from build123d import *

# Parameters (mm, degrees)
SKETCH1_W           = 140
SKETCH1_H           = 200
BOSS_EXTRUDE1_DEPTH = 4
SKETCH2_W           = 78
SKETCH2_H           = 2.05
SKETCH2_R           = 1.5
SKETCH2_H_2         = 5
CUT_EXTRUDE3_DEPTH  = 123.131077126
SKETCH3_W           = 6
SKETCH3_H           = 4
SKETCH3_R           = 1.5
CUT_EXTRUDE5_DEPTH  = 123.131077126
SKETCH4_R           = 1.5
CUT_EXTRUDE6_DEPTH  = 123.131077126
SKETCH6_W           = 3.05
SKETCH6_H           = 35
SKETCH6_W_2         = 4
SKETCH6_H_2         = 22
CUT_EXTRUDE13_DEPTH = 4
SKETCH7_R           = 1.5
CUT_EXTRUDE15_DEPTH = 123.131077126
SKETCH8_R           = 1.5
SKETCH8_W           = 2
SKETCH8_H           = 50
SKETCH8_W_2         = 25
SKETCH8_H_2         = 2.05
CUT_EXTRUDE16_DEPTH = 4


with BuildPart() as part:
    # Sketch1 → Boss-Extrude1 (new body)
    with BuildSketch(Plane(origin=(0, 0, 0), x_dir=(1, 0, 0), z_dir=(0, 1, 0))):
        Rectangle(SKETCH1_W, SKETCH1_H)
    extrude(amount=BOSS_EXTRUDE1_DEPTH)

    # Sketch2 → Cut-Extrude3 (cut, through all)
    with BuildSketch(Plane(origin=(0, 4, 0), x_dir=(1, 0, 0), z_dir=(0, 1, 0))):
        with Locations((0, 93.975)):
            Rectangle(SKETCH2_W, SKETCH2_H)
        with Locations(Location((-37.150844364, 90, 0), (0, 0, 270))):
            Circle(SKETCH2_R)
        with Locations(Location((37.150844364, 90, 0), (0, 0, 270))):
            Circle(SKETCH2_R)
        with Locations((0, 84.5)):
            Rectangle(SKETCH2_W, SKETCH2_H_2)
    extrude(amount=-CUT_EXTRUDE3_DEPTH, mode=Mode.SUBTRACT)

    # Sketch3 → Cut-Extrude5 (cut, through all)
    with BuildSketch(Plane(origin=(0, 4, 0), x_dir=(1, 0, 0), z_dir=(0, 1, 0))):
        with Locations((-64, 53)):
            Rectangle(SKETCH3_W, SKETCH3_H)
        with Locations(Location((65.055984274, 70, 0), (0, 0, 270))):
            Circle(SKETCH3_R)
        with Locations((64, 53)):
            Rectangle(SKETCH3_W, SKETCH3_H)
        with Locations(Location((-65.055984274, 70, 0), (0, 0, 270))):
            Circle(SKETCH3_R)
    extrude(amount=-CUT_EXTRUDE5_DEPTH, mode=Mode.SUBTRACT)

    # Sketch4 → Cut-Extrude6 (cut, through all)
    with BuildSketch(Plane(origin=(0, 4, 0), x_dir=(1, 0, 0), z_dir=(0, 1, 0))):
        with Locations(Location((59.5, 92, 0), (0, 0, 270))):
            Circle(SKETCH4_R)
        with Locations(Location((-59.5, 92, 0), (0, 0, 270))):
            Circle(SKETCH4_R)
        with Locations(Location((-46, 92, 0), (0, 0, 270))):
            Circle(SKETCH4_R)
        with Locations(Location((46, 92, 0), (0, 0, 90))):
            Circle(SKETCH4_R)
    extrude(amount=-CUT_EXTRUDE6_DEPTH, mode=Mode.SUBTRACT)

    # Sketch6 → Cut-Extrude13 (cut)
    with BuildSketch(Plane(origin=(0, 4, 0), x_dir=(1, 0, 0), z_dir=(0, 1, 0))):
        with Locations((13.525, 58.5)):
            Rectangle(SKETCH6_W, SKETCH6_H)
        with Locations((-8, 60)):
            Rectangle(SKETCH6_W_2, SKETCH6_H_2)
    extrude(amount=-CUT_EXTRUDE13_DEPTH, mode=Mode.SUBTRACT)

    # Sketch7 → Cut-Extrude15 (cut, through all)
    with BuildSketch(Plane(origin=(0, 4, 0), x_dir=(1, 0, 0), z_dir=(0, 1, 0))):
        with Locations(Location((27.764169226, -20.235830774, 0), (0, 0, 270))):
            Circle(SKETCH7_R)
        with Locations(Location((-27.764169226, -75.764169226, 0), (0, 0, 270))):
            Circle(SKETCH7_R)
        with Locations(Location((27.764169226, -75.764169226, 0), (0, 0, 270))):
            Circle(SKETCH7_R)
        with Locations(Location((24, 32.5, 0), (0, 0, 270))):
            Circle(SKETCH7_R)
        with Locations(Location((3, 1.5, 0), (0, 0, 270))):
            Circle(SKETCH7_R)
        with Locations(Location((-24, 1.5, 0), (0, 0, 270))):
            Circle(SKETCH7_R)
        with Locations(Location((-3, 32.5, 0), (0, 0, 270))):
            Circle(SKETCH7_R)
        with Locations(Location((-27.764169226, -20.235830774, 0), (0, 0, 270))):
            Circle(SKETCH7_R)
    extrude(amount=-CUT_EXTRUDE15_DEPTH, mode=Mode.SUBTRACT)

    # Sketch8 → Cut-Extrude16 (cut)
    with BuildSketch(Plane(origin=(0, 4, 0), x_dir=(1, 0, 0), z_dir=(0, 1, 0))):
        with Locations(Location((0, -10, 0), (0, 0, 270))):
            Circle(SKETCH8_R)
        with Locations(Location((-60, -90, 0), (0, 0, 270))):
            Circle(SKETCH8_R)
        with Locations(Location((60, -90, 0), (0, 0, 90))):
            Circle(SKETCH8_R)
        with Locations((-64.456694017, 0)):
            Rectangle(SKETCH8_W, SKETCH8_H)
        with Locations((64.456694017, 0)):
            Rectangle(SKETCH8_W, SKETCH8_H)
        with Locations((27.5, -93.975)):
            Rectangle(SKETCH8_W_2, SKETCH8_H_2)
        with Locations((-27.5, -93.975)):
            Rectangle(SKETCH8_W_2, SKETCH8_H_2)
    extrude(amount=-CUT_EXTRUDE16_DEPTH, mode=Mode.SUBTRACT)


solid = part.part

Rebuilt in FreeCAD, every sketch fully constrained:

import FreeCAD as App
import Part
import Sketcher
from FreeCAD import Vector
Q = App.Units.Quantity

doc = App.newDocument("Part")
body = doc.addObject("PartDesign::Body", "Body")

# Sketch on XZ plane
sketch1 = body.newObject("Sketcher::SketchObject", "Sketch")
sketch1.AttachmentSupport = (doc.getObject("XZ_Plane"), [""])
sketch1.MapMode = "FlatFace"
sketch1.addGeometry([
    Part.LineSegment(Vector(-70, -100, 0), Vector(-70, 100, 0)),
    Part.LineSegment(Vector(-70, 100, 0), Vector(70, 100, 0)),
    Part.LineSegment(Vector(70, 100, 0), Vector(70, -100, 0)),
    Part.LineSegment(Vector(70, -100, 0), Vector(-70, -100, 0)),
], False)
sketch1.addConstraint([
    Sketcher.Constraint("Coincident", 0, 2, 1, 1),
    Sketcher.Constraint("Coincident", 1, 2, 2, 1),
    Sketcher.Constraint("Coincident", 2, 2, 3, 1),
    Sketcher.Constraint("Coincident", 3, 2, 0, 1),
    Sketcher.Constraint("Vertical", 0),
    Sketcher.Constraint("Horizontal", 1),
    Sketcher.Constraint("Vertical", 2),
    Sketcher.Constraint("Horizontal", 3),
    Sketcher.Constraint("Symmetric", 0, 2, 2, 2, -1, 1),
    Sketcher.Constraint("DistanceX", 1, 1, 1, 2, Q("140 mm")),
    Sketcher.Constraint("DistanceY", 0, 1, 0, 2, Q("200 mm")),
])
pad1 = body.newObject("PartDesign::Pad", "Pad")
pad1.Profile = sketch1
pad1.Length = 4
pad1.Reversed = True

# Sketch on XZ plane
sketch2 = body.newObject("Sketcher::SketchObject", "Sketch001")
sketch2.AttachmentSupport = (doc.getObject("XZ_Plane"), [""])
sketch2.MapMode = "FlatFace"
sketch2.AttachmentOffset = App.Placement(Vector(0, 0, -4), App.Rotation())
sketch2.addGeometry([
    Part.LineSegment(Vector(-39, -95, 0), Vector(-39, -93, 0)),  # 0
    Part.LineSegment(Vector(-39, -93, 0), Vector(39, -93, 0)),  # 1
    Part.LineSegment(Vector(39, -93, 0), Vector(39, -95, 0)),  # 2
    Part.LineSegment(Vector(39, -95, 0), Vector(-39, -95, 0)),  # 3
    Part.Circle(Vector(-37.2, -90, 0), Vector(0, 0, 1), 1.5),  # 4
    Part.Circle(Vector(37.2, -90, 0), Vector(0, 0, 1), 1.5),  # 5
    Part.LineSegment(Vector(-39, -87, 0), Vector(-39, -82, 0)),  # 6
    Part.LineSegment(Vector(-39, -82, 0), Vector(39, -82, 0)),  # 7
    Part.LineSegment(Vector(39, -82, 0), Vector(39, -87, 0)),  # 8
    Part.LineSegment(Vector(39, -87, 0), Vector(-39, -87, 0)),  # 9
], False)
sketch2.addConstraint([
    Sketcher.Constraint("Coincident", 0, 2, 1, 1),
    Sketcher.Constraint("Coincident", 1, 2, 2, 1),
    Sketcher.Constraint("Coincident", 2, 2, 3, 1),
    Sketcher.Constraint("Coincident", 3, 2, 0, 1),
    Sketcher.Constraint("Coincident", 6, 2, 7, 1),
    Sketcher.Constraint("Coincident", 7, 2, 8, 1),
    Sketcher.Constraint("Coincident", 8, 2, 9, 1),
    Sketcher.Constraint("Coincident", 9, 2, 6, 1),
    Sketcher.Constraint("Vertical", 0),
    Sketcher.Constraint("Horizontal", 1),
    Sketcher.Constraint("Vertical", 2),
    Sketcher.Constraint("Horizontal", 3),
    Sketcher.Constraint("Vertical", 6),
    Sketcher.Constraint("Horizontal", 7),
    Sketcher.Constraint("Vertical", 8),
    Sketcher.Constraint("Horizontal", 9),
    Sketcher.Constraint("Equal", 4, 5),
    Sketcher.Constraint("Symmetric", 4, 3, 5, 3, -2),
    Sketcher.Constraint("Vertical", 3, 2, 6, 2),
    Sketcher.Constraint("Vertical", 2, 2, 7, 2),
    Sketcher.Constraint("Diameter", 4, Q("3 mm")),
    Sketcher.Constraint("DistanceX", 1, 1, 1, 2, Q("78 mm")),
    Sketcher.Constraint("DistanceY", 6, 1, 6, 2, Q("5 mm")),
    Sketcher.Constraint("DistanceY", 4, 3, -1, 1, Q("90 mm")),
    Sketcher.Constraint("DistanceX", 0, 2, -1, 1, Q("39 mm")),
    Sketcher.Constraint("DistanceY", 2, 2, -1, 1, Q("95 mm")),
    Sketcher.Constraint("DistanceY", 6, 2, -1, 1, Q("82 mm")),
    Sketcher.Constraint("DistanceY", 0, 1, 0, 2, Q("2.05 mm")),
    Sketcher.Constraint("DistanceX", 4, 3, 5, 3, Q("74.301689 mm")),
])
pocket1 = body.newObject("PartDesign::Pocket", "Pocket")
pocket1.Profile = sketch2
pocket1.Type = "ThroughAll"
pocket1.Reversed = True

# Sketch on XZ plane
sketch3 = body.newObject("Sketcher::SketchObject", "Sketch002")
sketch3.AttachmentSupport = (doc.getObject("XZ_Plane"), [""])
sketch3.MapMode = "FlatFace"
sketch3.AttachmentOffset = App.Placement(Vector(0, 0, -4), App.Rotation())
sketch3.addGeometry([
    Part.LineSegment(Vector(-67, -55, 0), Vector(-67, -51, 0)),  # 0
    Part.LineSegment(Vector(-67, -51, 0), Vector(-61, -51, 0)),  # 1
    Part.LineSegment(Vector(-61, -51, 0), Vector(-61, -55, 0)),  # 2
    Part.LineSegment(Vector(-61, -55, 0), Vector(-67, -55, 0)),  # 3
    Part.Circle(Vector(65.1, -70, 0), Vector(0, 0, 1), 1.5),  # 4
    Part.LineSegment(Vector(61, -55, 0), Vector(61, -51, 0)),  # 5
    Part.LineSegment(Vector(61, -51, 0), Vector(67, -51, 0)),  # 6
    Part.LineSegment(Vector(67, -51, 0), Vector(67, -55, 0)),  # 7
    Part.LineSegment(Vector(67, -55, 0), Vector(61, -55, 0)),  # 8
    Part.Circle(Vector(-65.1, -70, 0), Vector(0, 0, 1), 1.5),  # 9
], False)
sketch3.addConstraint([
    Sketcher.Constraint("Coincident", 0, 2, 1, 1),
    Sketcher.Constraint("Coincident", 1, 2, 2, 1),
    Sketcher.Constraint("Coincident", 2, 2, 3, 1),
    Sketcher.Constraint("Coincident", 3, 2, 0, 1),
    Sketcher.Constraint("Coincident", 5, 2, 6, 1),
    Sketcher.Constraint("Coincident", 6, 2, 7, 1),
    Sketcher.Constraint("Coincident", 7, 2, 8, 1),
    Sketcher.Constraint("Coincident", 8, 2, 5, 1),
    Sketcher.Constraint("Vertical", 0),
    Sketcher.Constraint("Horizontal", 1),
    Sketcher.Constraint("Vertical", 2),
    Sketcher.Constraint("Horizontal", 3),
    Sketcher.Constraint("Vertical", 5),
    Sketcher.Constraint("Horizontal", 6),
    Sketcher.Constraint("Vertical", 7),
    Sketcher.Constraint("Horizontal", 8),
    Sketcher.Constraint("Equal", 4, 9),
    Sketcher.Constraint("Symmetric", 4, 3, 9, 3, -2),
    Sketcher.Constraint("Symmetric", 1, 2, 5, 2, -2),
    Sketcher.Constraint("Symmetric", 3, 2, 7, 2, -2),
    Sketcher.Constraint("Diameter", 4, Q("3 mm")),
    Sketcher.Constraint("DistanceX", 1, 1, 1, 2, Q("6 mm")),
    Sketcher.Constraint("DistanceY", 0, 1, 0, 2, Q("4 mm")),
    Sketcher.Constraint("DistanceY", 4, 3, -1, 1, Q("70 mm")),
    Sketcher.Constraint("DistanceX", 0, 2, -1, 1, Q("67 mm")),
    Sketcher.Constraint("DistanceY", 0, 2, -1, 1, Q("51 mm")),
    Sketcher.Constraint("DistanceX", 9, 3, 4, 3, Q("130.111969 mm")),
])
pocket2 = body.newObject("PartDesign::Pocket", "Pocket001")
pocket2.Profile = sketch3
pocket2.Type = "ThroughAll"
pocket2.Reversed = True

# Sketch on XZ plane
sketch4 = body.newObject("Sketcher::SketchObject", "Sketch003")
sketch4.AttachmentSupport = (doc.getObject("XZ_Plane"), [""])
sketch4.MapMode = "FlatFace"
sketch4.AttachmentOffset = App.Placement(Vector(0, 0, -4), App.Rotation())
sketch4.addGeometry([
    Part.Circle(Vector(59.5, -92, 0), Vector(0, 0, 1), 1.5),
    Part.Circle(Vector(-59.5, -92, 0), Vector(0, 0, 1), 1.5),
    Part.Circle(Vector(-46, -92, 0), Vector(0, 0, 1), 1.5),
    Part.Circle(Vector(46, -92, 0), Vector(0, 0, 1), 1.5),
], False)
sketch4.addConstraint([
    Sketcher.Constraint("Equal", 0, 1),
    Sketcher.Constraint("Equal", 1, 2),
    Sketcher.Constraint("Equal", 2, 3),
    Sketcher.Constraint("Symmetric", 0, 3, 1, 3, -2),
    Sketcher.Constraint("Symmetric", 2, 3, 3, 3, -2),
    Sketcher.Constraint("Horizontal", 1, 3, 2, 3),
    Sketcher.Constraint("Diameter", 0, Q("3 mm")),
    Sketcher.Constraint("DistanceY", 0, 3, -1, 1, Q("92 mm")),
    Sketcher.Constraint("DistanceX", 2, 3, -1, 1, Q("46 mm")),
    Sketcher.Constraint("DistanceX", 1, 3, 0, 3, Q("119 mm")),
])
pocket3 = body.newObject("PartDesign::Pocket", "Pocket002")
pocket3.Profile = sketch4
pocket3.Type = "ThroughAll"
pocket3.Reversed = True

# Sketch on XZ plane
sketch5 = body.newObject("Sketcher::SketchObject", "Sketch004")
sketch5.AttachmentSupport = (doc.getObject("XZ_Plane"), [""])
sketch5.MapMode = "FlatFace"
sketch5.AttachmentOffset = App.Placement(Vector(0, 0, -4), App.Rotation())
sketch5.addGeometry([
    Part.LineSegment(Vector(12, -76, 0), Vector(12, -41, 0)),  # 0
    Part.LineSegment(Vector(12, -41, 0), Vector(15.1, -41, 0)),  # 1
    Part.LineSegment(Vector(15.1, -41, 0), Vector(15.1, -76, 0)),  # 2
    Part.LineSegment(Vector(15.1, -76, 0), Vector(12, -76, 0)),  # 3
    Part.LineSegment(Vector(-10, -71, 0), Vector(-10, -49, 0)),  # 4
    Part.LineSegment(Vector(-10, -49, 0), Vector(-6, -49, 0)),  # 5
    Part.LineSegment(Vector(-6, -49, 0), Vector(-6, -71, 0)),  # 6
    Part.LineSegment(Vector(-6, -71, 0), Vector(-10, -71, 0)),  # 7
], False)
sketch5.addConstraint([
    Sketcher.Constraint("Coincident", 0, 2, 1, 1),
    Sketcher.Constraint("Coincident", 1, 2, 2, 1),
    Sketcher.Constraint("Coincident", 2, 2, 3, 1),
    Sketcher.Constraint("Coincident", 3, 2, 0, 1),
    Sketcher.Constraint("Coincident", 4, 2, 5, 1),
    Sketcher.Constraint("Coincident", 5, 2, 6, 1),
    Sketcher.Constraint("Coincident", 6, 2, 7, 1),
    Sketcher.Constraint("Coincident", 7, 2, 4, 1),
    Sketcher.Constraint("Vertical", 0),
    Sketcher.Constraint("Horizontal", 1),
    Sketcher.Constraint("Vertical", 2),
    Sketcher.Constraint("Horizontal", 3),
    Sketcher.Constraint("Vertical", 4),
    Sketcher.Constraint("Horizontal", 5),
    Sketcher.Constraint("Vertical", 6),
    Sketcher.Constraint("Horizontal", 7),
    Sketcher.Constraint("DistanceX", 5, 1, 5, 2, Q("4 mm")),
    Sketcher.Constraint("DistanceY", 0, 1, 0, 2, Q("35 mm")),
    Sketcher.Constraint("DistanceY", 4, 1, 4, 2, Q("22 mm")),
    Sketcher.Constraint("DistanceX", -1, 1, 0, 2, Q("12 mm")),
    Sketcher.Constraint("DistanceY", 0, 2, -1, 1, Q("41 mm")),
    Sketcher.Constraint("DistanceX", 4, 2, -1, 1, Q("10 mm")),
    Sketcher.Constraint("DistanceY", 4, 2, -1, 1, Q("49 mm")),
    Sketcher.Constraint("DistanceX", 1, 1, 1, 2, Q("3.05 mm")),
])
pocket4 = body.newObject("PartDesign::Pocket", "Pocket003")
pocket4.Profile = sketch5
pocket4.Length = 4
pocket4.Reversed = True

# Sketch on XZ plane
sketch6 = body.newObject("Sketcher::SketchObject", "Sketch005")
sketch6.AttachmentSupport = (doc.getObject("XZ_Plane"), [""])
sketch6.MapMode = "FlatFace"
sketch6.AttachmentOffset = App.Placement(Vector(0, 0, -4), App.Rotation())
sketch6.addGeometry([
    Part.Circle(Vector(27.8, 20.2, 0), Vector(0, 0, 1), 1.5),  # 0
    Part.Circle(Vector(-27.8, 75.8, 0), Vector(0, 0, 1), 1.5),  # 1
    Part.Circle(Vector(27.8, 75.8, 0), Vector(0, 0, 1), 1.5),  # 2
    Part.Circle(Vector(24, -32.5, 0), Vector(0, 0, 1), 1.5),  # 3
    Part.Circle(Vector(3, -1.5, 0), Vector(0, 0, 1), 1.5),  # 4
    Part.Circle(Vector(-24, -1.5, 0), Vector(0, 0, 1), 1.5),  # 5
    Part.Circle(Vector(-3, -32.5, 0), Vector(0, 0, 1), 1.5),  # 6
    Part.Circle(Vector(-27.8, 20.2, 0), Vector(0, 0, 1), 1.5),  # 7
], False)
sketch6.addConstraint([
    Sketcher.Constraint("Equal", 0, 1),
    Sketcher.Constraint("Equal", 1, 2),
    Sketcher.Constraint("Equal", 2, 3),
    Sketcher.Constraint("Equal", 3, 4),
    Sketcher.Constraint("Equal", 4, 5),
    Sketcher.Constraint("Equal", 5, 6),
    Sketcher.Constraint("Equal", 6, 7),
    Sketcher.Constraint("Symmetric", 1, 3, 2, 3, -2),
    Sketcher.Constraint("Symmetric", 0, 3, 7, 3, -2),
    Sketcher.Constraint("Horizontal", 4, 3, 5, 3),
    Sketcher.Constraint("Horizontal", 3, 3, 6, 3),
    Sketcher.Constraint("Vertical", 0, 3, 2, 3),
    Sketcher.Constraint("Diameter", 0, Q("3 mm")),
    Sketcher.Constraint("DistanceX", -1, 1, 3, 3, Q("24 mm")),
    Sketcher.Constraint("DistanceX", -1, 1, 4, 3, Q("3 mm")),
    Sketcher.Constraint("DistanceX", 5, 3, -1, 1, Q("24 mm")),
    Sketcher.Constraint("DistanceX", 6, 3, -1, 1, Q("3 mm")),
    Sketcher.Constraint("DistanceY", 3, 3, 4, 3, Q("31 mm")),
    Sketcher.Constraint("DistanceY", 3, 3, -1, 1, Q("32.5 mm")),
    Sketcher.Constraint("DistanceX", -1, 1, 0, 3, Q("27.764169 mm")),
    Sketcher.Constraint("DistanceY", -1, 1, 0, 3, Q("20.235831 mm")),
    Sketcher.Constraint("DistanceY", -1, 1, 1, 3, Q("75.764169 mm")),
])
pocket5 = body.newObject("PartDesign::Pocket", "Pocket004")
pocket5.Profile = sketch6
pocket5.Type = "ThroughAll"
pocket5.Reversed = True

# Sketch on XZ plane
sketch7 = body.newObject("Sketcher::SketchObject", "Sketch006")
sketch7.AttachmentSupport = (doc.getObject("XZ_Plane"), [""])
sketch7.MapMode = "FlatFace"
sketch7.AttachmentOffset = App.Placement(Vector(0, 0, -4), App.Rotation())
sketch7.addGeometry([
    Part.Circle(Vector(0, 10, 0), Vector(0, 0, 1), 1.5),  # 0
    Part.Circle(Vector(-60, 90, 0), Vector(0, 0, 1), 1.5),  # 1
    Part.Circle(Vector(60, 90, 0), Vector(0, 0, 1), 1.5),  # 2
    Part.LineSegment(Vector(-65.5, -25, 0), Vector(-65.5, 25, 0)),  # 3
    Part.LineSegment(Vector(-65.5, 25, 0), Vector(-63.5, 25, 0)),  # 4
    Part.LineSegment(Vector(-63.5, 25, 0), Vector(-63.5, -25, 0)),  # 5
    Part.LineSegment(Vector(-63.5, -25, 0), Vector(-65.5, -25, 0)),  # 6
    Part.LineSegment(Vector(63.5, -25, 0), Vector(63.5, 25, 0)),  # 7
    Part.LineSegment(Vector(63.5, 25, 0), Vector(65.5, 25, 0)),  # 8
    Part.LineSegment(Vector(65.5, 25, 0), Vector(65.5, -25, 0)),  # 9
    Part.LineSegment(Vector(65.5, -25, 0), Vector(63.5, -25, 0)),  # 10
    Part.LineSegment(Vector(15, 93, 0), Vector(15, 95, 0)),  # 11
    Part.LineSegment(Vector(15, 95, 0), Vector(40, 95, 0)),  # 12
    Part.LineSegment(Vector(40, 95, 0), Vector(40, 93, 0)),  # 13
    Part.LineSegment(Vector(40, 93, 0), Vector(15, 93, 0)),  # 14
    Part.LineSegment(Vector(-40, 93, 0), Vector(-40, 95, 0)),  # 15
    Part.LineSegment(Vector(-40, 95, 0), Vector(-15, 95, 0)),  # 16
    Part.LineSegment(Vector(-15, 95, 0), Vector(-15, 93, 0)),  # 17
    Part.LineSegment(Vector(-15, 93, 0), Vector(-40, 93, 0)),  # 18
], False)
sketch7.addConstraint([
    Sketcher.Constraint("Coincident", 3, 2, 4, 1),
    Sketcher.Constraint("Coincident", 4, 2, 5, 1),
    Sketcher.Constraint("Coincident", 5, 2, 6, 1),
    Sketcher.Constraint("Coincident", 6, 2, 3, 1),
    Sketcher.Constraint("Coincident", 7, 2, 8, 1),
    Sketcher.Constraint("Coincident", 8, 2, 9, 1),
    Sketcher.Constraint("Coincident", 9, 2, 10, 1),
    Sketcher.Constraint("Coincident", 10, 2, 7, 1),
    Sketcher.Constraint("Coincident", 11, 2, 12, 1),
    Sketcher.Constraint("Coincident", 12, 2, 13, 1),
    Sketcher.Constraint("Coincident", 13, 2, 14, 1),
    Sketcher.Constraint("Coincident", 14, 2, 11, 1),
    Sketcher.Constraint("Coincident", 15, 2, 16, 1),
    Sketcher.Constraint("Coincident", 16, 2, 17, 1),
    Sketcher.Constraint("Coincident", 17, 2, 18, 1),
    Sketcher.Constraint("Coincident", 18, 2, 15, 1),
    Sketcher.Constraint("Vertical", 3),
    Sketcher.Constraint("Horizontal", 4),
    Sketcher.Constraint("Vertical", 5),
    Sketcher.Constraint("Horizontal", 6),
    Sketcher.Constraint("Vertical", 7),
    Sketcher.Constraint("Horizontal", 8),
    Sketcher.Constraint("Vertical", 9),
    Sketcher.Constraint("Horizontal", 10),
    Sketcher.Constraint("Vertical", 11),
    Sketcher.Constraint("Horizontal", 12),
    Sketcher.Constraint("Vertical", 13),
    Sketcher.Constraint("Horizontal", 14),
    Sketcher.Constraint("Vertical", 15),
    Sketcher.Constraint("Horizontal", 16),
    Sketcher.Constraint("Vertical", 17),
    Sketcher.Constraint("Horizontal", 18),
    Sketcher.Constraint("Equal", 0, 1),
    Sketcher.Constraint("Equal", 1, 2),
    Sketcher.Constraint("Symmetric", 5, 2, 7, 2, -1, 1),
    Sketcher.Constraint("Symmetric", 3, 2, 9, 2, -1, 1),
    Sketcher.Constraint("Symmetric", 1, 3, 2, 3, -2),
    Sketcher.Constraint("Symmetric", 12, 2, 15, 2, -2),
    Sketcher.Constraint("Symmetric", 14, 2, 17, 2, -2),
    Sketcher.Constraint("PointOnObject", 0, 3, -2),
    Sketcher.Constraint("Horizontal", 4, 2, 7, 2),
    Sketcher.Constraint("Diameter", 0, Q("3 mm")),
    Sketcher.Constraint("DistanceX", 4, 1, 4, 2, Q("2 mm")),
    Sketcher.Constraint("DistanceX", 12, 1, 12, 2, Q("25 mm")),
    Sketcher.Constraint("DistanceY", 3, 1, 3, 2, Q("50 mm")),
    Sketcher.Constraint("DistanceY", -1, 1, 0, 3, Q("10 mm")),
    Sketcher.Constraint("DistanceX", 1, 3, -1, 1, Q("60 mm")),
    Sketcher.Constraint("DistanceY", -1, 1, 1, 3, Q("90 mm")),
    Sketcher.Constraint("DistanceX", -1, 1, 11, 2, Q("15 mm")),
    Sketcher.Constraint("DistanceY", -1, 1, 11, 2, Q("95 mm")),
    Sketcher.Constraint("DistanceY", 11, 1, 11, 2, Q("2.05 mm")),
    Sketcher.Constraint("DistanceX", 4, 2, 7, 2, Q("126.913388 mm")),
])
pocket6 = body.newObject("PartDesign::Pocket", "Pocket005")
pocket6.Profile = sketch7
pocket6.Length = 4
pocket6.Reversed = True

doc.recompute()
